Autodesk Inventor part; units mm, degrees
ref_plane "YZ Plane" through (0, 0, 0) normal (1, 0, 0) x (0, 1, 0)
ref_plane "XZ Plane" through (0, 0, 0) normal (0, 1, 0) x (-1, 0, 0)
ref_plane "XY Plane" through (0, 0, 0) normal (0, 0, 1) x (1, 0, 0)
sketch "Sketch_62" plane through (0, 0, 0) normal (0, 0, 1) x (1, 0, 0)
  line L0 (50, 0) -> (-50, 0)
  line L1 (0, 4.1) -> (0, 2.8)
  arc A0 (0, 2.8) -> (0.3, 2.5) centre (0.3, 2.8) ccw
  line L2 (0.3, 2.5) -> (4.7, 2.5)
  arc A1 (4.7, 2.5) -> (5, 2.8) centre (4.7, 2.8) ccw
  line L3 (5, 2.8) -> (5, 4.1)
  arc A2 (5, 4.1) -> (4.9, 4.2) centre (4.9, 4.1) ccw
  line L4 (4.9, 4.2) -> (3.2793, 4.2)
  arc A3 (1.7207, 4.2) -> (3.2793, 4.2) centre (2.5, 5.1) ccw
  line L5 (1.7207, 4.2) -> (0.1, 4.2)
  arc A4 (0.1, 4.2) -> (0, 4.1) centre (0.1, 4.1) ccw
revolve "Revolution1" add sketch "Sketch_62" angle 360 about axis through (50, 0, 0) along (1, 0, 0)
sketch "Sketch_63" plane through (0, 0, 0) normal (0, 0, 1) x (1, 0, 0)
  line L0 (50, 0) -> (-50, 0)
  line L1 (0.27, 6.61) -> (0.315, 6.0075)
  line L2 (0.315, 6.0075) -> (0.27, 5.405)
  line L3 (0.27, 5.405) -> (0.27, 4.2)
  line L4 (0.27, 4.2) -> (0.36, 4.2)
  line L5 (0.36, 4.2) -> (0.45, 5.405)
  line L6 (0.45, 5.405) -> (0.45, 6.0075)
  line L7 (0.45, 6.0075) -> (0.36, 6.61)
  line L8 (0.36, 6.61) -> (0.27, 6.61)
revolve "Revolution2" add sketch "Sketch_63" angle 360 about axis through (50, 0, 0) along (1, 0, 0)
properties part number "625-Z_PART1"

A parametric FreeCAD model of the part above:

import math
import FreeCAD as App
import Part
import Sketcher

V = App.Vector
Q = App.Units.Quantity


def add_polygon(sketch, points):
    """Adds a closed chain of lines whose ends are joined by coincident constraints."""
    first, n = sketch.GeometryCount, len(points)
    for a, b in zip(points, points[1:] + points[:1]):
        sketch.addGeometry(Part.LineSegment(App.Vector(*a, 0), App.Vector(*b, 0)), False)
    for i in range(n):
        sketch.addConstraint(Sketcher.Constraint("Coincident", first + i, 2, first + (i + 1) % n, 1))

doc = App.newDocument("Part")
body = doc.addObject("PartDesign::Body", "Body")

sketch1 = doc.addObject("Sketcher::SketchObject", "Sketch")
body.addObject(sketch1)
sketch1.AttachmentSupport = (doc.XY_Plane, [""])
sketch1.MapMode = "FlatFace"
sketch1.addGeometry([
    Part.ArcOfCircle(Part.Circle(V(0.1, 4.1, 0), V(0, 0, 1), 0.1), math.radians(90), math.radians(180)),
    Part.LineSegment(V(0, 4.1, 0), V(0, 2.8, 0)),
    Part.ArcOfCircle(Part.Circle(V(0.3, 2.8, 0), V(0, 0, 1), 0.3), math.radians(180), math.radians(270)),
    Part.LineSegment(V(0.3, 2.5, 0), V(4.7, 2.5, 0)),
    Part.ArcOfCircle(Part.Circle(V(4.7, 2.8, 0), V(0, 0, 1), 0.3), math.radians(-90), math.radians(0)),
    Part.LineSegment(V(5, 2.8, 0), V(5, 4.1, 0)),
    Part.ArcOfCircle(Part.Circle(V(4.9, 4.1, 0), V(0, 0, 1), 0.1), math.radians(0), math.radians(90)),
    Part.LineSegment(V(4.9, 4.2, 0), V(3.28, 4.2, 0)),
    Part.ArcOfCircle(Part.Circle(V(2.5, 5.1, 0), V(0, 0, 1), 1.19), math.radians(-131), math.radians(-49)),
    Part.LineSegment(V(1.72, 4.2, 0), V(0.1, 4.2, 0)),
], False)
sketch1.addConstraint([
    Sketcher.Constraint("Tangent", 0, 2, 1, 1),
    Sketcher.Constraint("Tangent", 1, 2, 2, 1),
    Sketcher.Constraint("Tangent", 2, 2, 3, 1),
    Sketcher.Constraint("Tangent", 3, 2, 4, 1),
    Sketcher.Constraint("Tangent", 4, 2, 5, 1),
    Sketcher.Constraint("Tangent", 5, 2, 6, 1),
    Sketcher.Constraint("Tangent", 6, 2, 7, 1),
    Sketcher.Constraint("Coincident", 7, 2, 8, 2),
    Sketcher.Constraint("Coincident", 8, 1, 9, 1),
    Sketcher.Constraint("Tangent", 9, 2, 0, 1),
    Sketcher.Constraint("Vertical", 1),
    Sketcher.Constraint("Horizontal", 3),
    Sketcher.Constraint("Vertical", 5),
    Sketcher.Constraint("Horizontal", 7),
    Sketcher.Constraint("Horizontal", 9),
    Sketcher.Constraint("Equal", 2, 4),
    Sketcher.Constraint("Equal", 0, 6),
    Sketcher.Constraint("PointOnObject", 0, 2, -2),
    Sketcher.Constraint("Horizontal", 0, 3, 6, 3),
    Sketcher.Constraint("Equal", 7, 9),
    Sketcher.Constraint("Radius", 0, Q("0.1 mm")),
    Sketcher.Constraint("Radius", 2, Q("0.3 mm")),
    Sketcher.Constraint("DistanceX", 3, 1, 3, 2, Q("4.4 mm")),
    Sketcher.Constraint("DistanceY", 1, 2, 1, 1, Q("1.3 mm")),
    Sketcher.Constraint("DistanceY", 0, 3, 8, 3, Q("1 mm")),
    Sketcher.Constraint("DistanceY", -1, 1, 0, 3, Q("4.1 mm")),
    Sketcher.Constraint("Radius", 8, Q("1.1905 mm")),
])
revolution = doc.addObject("PartDesign::Revolution", "Revolution")
body.addObject(revolution)
revolution.Profile = sketch1
revolution.ReferenceAxis = (sketch1, ["H_Axis"])
revolution.Angle = 360

sketch2 = doc.addObject("Sketcher::SketchObject", "Sketch001")
body.addObject(sketch2)
sketch2.AttachmentSupport = (doc.XY_Plane, [""])
sketch2.MapMode = "FlatFace"
add_polygon(sketch2, [(0.36, 6.61), (0.27, 6.61), (0.32, 6.01), (0.27, 5.41), (0.27, 4.2), (0.36, 4.2), (0.45, 5.41), (0.45, 6.01)])
sketch2.addConstraint([
    Sketcher.Constraint("Horizontal", 0),
    Sketcher.Constraint("Vertical", 3),
    Sketcher.Constraint("Horizontal", 4),
    Sketcher.Constraint("Vertical", 6),
    Sketcher.Constraint("Parallel", 2, 5),
    Sketcher.Constraint("Horizontal", 2, 2, 5, 2),
    Sketcher.Constraint("Horizontal", 1, 2, 6, 2),
    Sketcher.Constraint("Vertical", 0, 2, 2, 2),
    Sketcher.Constraint("Vertical", 4, 2, 7, 2),
    Sketcher.Constraint("Equal", 1, 2),
    Sketcher.Constraint("DistanceX", 0, 2, 0, 1, Q("0.09 mm")),
    Sketcher.Constraint("DistanceY", -1, 1, 3, 2, Q("4.2 mm")),
    Sketcher.Constraint("DistanceY", 3, 2, 3, 1, Q("1.205 mm")),
    Sketcher.Constraint("DistanceX", -1, 1, 0, 2, Q("0.27 mm")),
    Sketcher.Constraint("DistanceY", -1, 1, 0, 2, Q("6.61 mm")),
    Sketcher.Constraint("DistanceX", -1, 1, 5, 2, Q("0.45 mm")),
])
revolution2 = doc.addObject("PartDesign::Revolution", "Revolution001")
body.addObject(revolution2)
revolution2.Profile = sketch2
revolution2.ReferenceAxis = (sketch2, ["H_Axis"])
revolution2.Angle = 360

doc.recompute()
